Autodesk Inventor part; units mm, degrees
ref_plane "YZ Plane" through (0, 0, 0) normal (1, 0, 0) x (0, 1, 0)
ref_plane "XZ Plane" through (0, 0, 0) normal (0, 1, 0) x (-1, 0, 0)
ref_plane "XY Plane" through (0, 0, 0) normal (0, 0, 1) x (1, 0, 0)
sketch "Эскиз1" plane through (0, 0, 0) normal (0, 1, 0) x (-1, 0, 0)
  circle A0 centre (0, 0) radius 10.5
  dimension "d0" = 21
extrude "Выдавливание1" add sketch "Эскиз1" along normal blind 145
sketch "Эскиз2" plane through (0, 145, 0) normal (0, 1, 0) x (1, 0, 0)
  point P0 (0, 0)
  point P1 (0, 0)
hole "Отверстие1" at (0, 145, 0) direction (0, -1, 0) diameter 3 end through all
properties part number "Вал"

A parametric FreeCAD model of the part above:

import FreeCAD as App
import Part
import Sketcher

V = App.Vector
Q = App.Units.Quantity

doc = App.newDocument("Part")
body = doc.addObject("PartDesign::Body", "Body")

sketch1 = body.newObject("Sketcher::SketchObject", "Sketch")
sketch1.AttachmentSupport = (doc.getObject("XZ_Plane"), [""])
sketch1.MapMode = "FlatFace"
sketch1.addGeometry(Part.Circle(V(0, 0, 0), V(0, 0, 1), 10), False)
sketch1.addConstraint([
    Sketcher.Constraint("Coincident", 0, 3, -1, 1),
    Sketcher.Constraint("Diameter", 0, Q("21 mm")),
])
pad1 = body.newObject("PartDesign::Pad", "Pad")
pad1.Profile = sketch1
pad1.Length = 145
pad1.Reversed = True

sketch2 = body.newObject("Sketcher::SketchObject", "Sketch001")
sketch2.AttachmentSupport = (doc.getObject("XZ_Plane"), [""])
sketch2.MapMode = "FlatFace"
sketch2.AttachmentOffset = App.Placement(V(0, 0, -145), App.Rotation())
sketch2.addGeometry(Part.Circle(V(0, 0, 0), V(0, 0, 1), 1.5), False)
sketch2.addConstraint([
    Sketcher.Constraint("Coincident", 0, 3, -1, 1),
    Sketcher.Constraint("Diameter", 0, Q("3 mm")),
])
doc.recompute()
hole = body.newObject("PartDesign::Hole", "Hole")
hole.Profile = sketch2
hole.ThreadType = "None"
hole.Diameter = 3
hole.DepthType = "ThroughAll"
hole.Reversed = True

doc.recompute()
